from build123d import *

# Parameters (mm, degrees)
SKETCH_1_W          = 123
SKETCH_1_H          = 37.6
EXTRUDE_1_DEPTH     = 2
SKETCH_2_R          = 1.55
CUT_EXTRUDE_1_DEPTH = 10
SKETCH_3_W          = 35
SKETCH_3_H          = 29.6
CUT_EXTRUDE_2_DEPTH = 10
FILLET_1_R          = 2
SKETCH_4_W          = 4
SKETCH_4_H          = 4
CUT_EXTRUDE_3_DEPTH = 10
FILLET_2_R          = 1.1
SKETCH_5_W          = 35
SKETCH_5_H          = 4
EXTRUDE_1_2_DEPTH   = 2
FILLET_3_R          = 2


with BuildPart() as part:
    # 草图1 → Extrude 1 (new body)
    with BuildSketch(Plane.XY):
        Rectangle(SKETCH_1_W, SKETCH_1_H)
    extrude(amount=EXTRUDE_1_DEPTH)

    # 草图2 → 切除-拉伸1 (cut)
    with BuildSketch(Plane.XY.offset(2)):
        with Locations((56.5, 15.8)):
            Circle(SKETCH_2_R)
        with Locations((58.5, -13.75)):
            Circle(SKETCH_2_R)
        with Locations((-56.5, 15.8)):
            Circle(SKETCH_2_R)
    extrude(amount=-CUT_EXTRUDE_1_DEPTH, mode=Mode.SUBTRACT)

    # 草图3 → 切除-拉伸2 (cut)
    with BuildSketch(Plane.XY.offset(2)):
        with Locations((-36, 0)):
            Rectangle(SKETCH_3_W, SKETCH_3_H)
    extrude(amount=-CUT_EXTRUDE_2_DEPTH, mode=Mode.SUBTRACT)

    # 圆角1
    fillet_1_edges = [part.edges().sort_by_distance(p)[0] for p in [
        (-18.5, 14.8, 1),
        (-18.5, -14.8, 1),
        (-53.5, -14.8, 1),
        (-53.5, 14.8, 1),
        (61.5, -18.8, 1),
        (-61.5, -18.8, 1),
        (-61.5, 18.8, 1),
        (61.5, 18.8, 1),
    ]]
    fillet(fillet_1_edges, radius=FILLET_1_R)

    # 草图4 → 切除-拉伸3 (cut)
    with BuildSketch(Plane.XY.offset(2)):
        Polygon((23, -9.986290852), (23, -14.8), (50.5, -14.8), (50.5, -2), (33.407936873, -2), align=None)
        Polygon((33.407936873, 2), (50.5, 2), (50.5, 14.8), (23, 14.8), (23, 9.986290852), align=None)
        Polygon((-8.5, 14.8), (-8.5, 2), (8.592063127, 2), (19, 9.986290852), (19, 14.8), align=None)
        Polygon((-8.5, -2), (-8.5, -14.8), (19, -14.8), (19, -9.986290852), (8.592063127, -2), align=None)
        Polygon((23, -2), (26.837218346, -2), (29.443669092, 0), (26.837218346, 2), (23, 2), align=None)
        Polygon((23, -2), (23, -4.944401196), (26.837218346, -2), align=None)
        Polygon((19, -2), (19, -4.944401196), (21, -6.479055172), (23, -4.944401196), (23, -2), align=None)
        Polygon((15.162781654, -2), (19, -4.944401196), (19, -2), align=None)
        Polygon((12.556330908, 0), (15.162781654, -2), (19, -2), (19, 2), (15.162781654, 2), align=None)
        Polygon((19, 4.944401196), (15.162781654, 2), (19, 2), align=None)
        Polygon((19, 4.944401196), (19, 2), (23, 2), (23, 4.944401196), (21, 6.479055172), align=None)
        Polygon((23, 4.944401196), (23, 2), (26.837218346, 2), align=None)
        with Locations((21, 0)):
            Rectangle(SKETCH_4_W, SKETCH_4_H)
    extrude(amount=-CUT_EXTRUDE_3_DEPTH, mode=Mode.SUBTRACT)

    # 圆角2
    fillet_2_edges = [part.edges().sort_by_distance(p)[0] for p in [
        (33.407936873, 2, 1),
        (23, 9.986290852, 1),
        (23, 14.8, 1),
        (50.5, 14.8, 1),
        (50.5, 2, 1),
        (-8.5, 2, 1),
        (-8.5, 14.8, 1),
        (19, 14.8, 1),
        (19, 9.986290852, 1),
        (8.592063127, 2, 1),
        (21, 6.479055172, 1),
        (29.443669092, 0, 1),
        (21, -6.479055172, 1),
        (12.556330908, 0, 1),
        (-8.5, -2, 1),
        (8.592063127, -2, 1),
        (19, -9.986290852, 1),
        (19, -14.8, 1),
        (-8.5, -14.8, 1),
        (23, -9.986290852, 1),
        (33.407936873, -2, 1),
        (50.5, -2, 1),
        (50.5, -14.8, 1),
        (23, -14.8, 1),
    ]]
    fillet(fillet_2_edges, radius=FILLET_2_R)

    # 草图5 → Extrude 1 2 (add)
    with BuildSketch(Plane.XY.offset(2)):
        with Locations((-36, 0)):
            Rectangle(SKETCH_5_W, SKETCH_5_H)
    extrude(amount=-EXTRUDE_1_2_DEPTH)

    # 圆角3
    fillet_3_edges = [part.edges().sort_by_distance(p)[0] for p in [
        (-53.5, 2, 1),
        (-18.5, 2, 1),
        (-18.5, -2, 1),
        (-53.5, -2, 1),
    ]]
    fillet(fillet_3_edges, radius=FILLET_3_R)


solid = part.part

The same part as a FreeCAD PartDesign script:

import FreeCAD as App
import Part
import Sketcher
Q = App.Units.Quantity


def edges_at(feature, points):
    """Names of the edges that pass closest to the given points."""
    edges = feature.Shape.Edges
    near = lambda p: min(range(len(edges)), key=lambda i: edges[i].distToShape(Part.Vertex(*p))[0])
    return sorted({f"Edge{near(p) + 1}" for p in points})


def add_polygon(sketch, points):
    """Adds a closed chain of lines whose ends are joined by coincident constraints."""
    first, n = sketch.GeometryCount, len(points)
    for a, b in zip(points, points[1:] + points[:1]):
        sketch.addGeometry(Part.LineSegment(App.Vector(*a, 0), App.Vector(*b, 0)), False)
    for i in range(n):
        sketch.addConstraint(Sketcher.Constraint("Coincident", first + i, 2, first + (i + 1) % n, 1))

doc = App.newDocument("Part")
body = doc.addObject("PartDesign::Body", "Body")

# Sketch on XY plane
sketch1 = body.newObject("Sketcher::SketchObject", "Sketch")
sketch1.AttachmentSupport = (doc.getObject("XY_Plane"), [""])
sketch1.MapMode = "FlatFace"
add_polygon(sketch1, [(-62, 19), (-62, -19), (62, -19), (62, 19)])  # lines 0-3
sketch1.addConstraint([
    Sketcher.Constraint("Vertical", 0),
    Sketcher.Constraint("Horizontal", 1),
    Sketcher.Constraint("Vertical", 2),
    Sketcher.Constraint("Horizontal", 3),
    Sketcher.Constraint("Symmetric", 0, 2, 2, 2, -1, 1),
    Sketcher.Constraint("DistanceX", 1, 1, 1, 2, 123.0),
    Sketcher.Constraint("DistanceY", 0, 2, 0, 1, 37.6),
])
pad1 = body.newObject("PartDesign::Pad", "Pad")
pad1.Profile = sketch1
pad1.Length = 2

# Sketch on XY plane
sketch2 = body.newObject("Sketcher::SketchObject", "Sketch001")
sketch2.AttachmentSupport = (doc.getObject("XY_Plane"), [""])
sketch2.MapMode = "FlatFace"
sketch2.AttachmentOffset = App.Placement(App.Vector(0, 0, 2), App.Rotation())
sketch2.addGeometry([
    Part.Circle(App.Vector(56.5, 15.8, 0), App.Vector(0, 0, 1), 1.6),
    Part.Circle(App.Vector(58.5, -13.8, 0), App.Vector(0, 0, 1), 1.6),
    Part.Circle(App.Vector(-56.5, 15.8, 0), App.Vector(0, 0, 1), 1.6),
], False)
sketch2.addConstraint([
    Sketcher.Constraint("Equal", 0, 1),
    Sketcher.Constraint("Equal", 1, 2),
    Sketcher.Constraint("Symmetric", 0, 3, 2, 3, -2),
    Sketcher.Constraint("Diameter", 0, 3.1),
    Sketcher.Constraint("DistanceX", 0, 3, 1, 3, 2.0),
    Sketcher.Constraint("DistanceX", 2, 3, 0, 3, 113.0),
    Sketcher.Constraint("DistanceY", -1, 1, 0, 3, 15.8),
    Sketcher.Constraint("DistanceY", 1, 3, -1, 1, 13.75),
])
pocket1 = body.newObject("PartDesign::Pocket", "Pocket")
pocket1.Profile = sketch2
pocket1.Length = 10

# Sketch on XY plane
sketch3 = body.newObject("Sketcher::SketchObject", "Sketch002")
sketch3.AttachmentSupport = (doc.getObject("XY_Plane"), [""])
sketch3.MapMode = "FlatFace"
sketch3.AttachmentOffset = App.Placement(App.Vector(0, 0, 2), App.Rotation())
add_polygon(sketch3, [(-54, 15), (-54, -15), (-18, -15), (-18, 15)])  # lines 0-3
sketch3.addConstraint([
    Sketcher.Constraint("Vertical", 0),
    Sketcher.Constraint("Horizontal", 1),
    Sketcher.Constraint("Vertical", 2),
    Sketcher.Constraint("Horizontal", 3),
    Sketcher.Constraint("DistanceX", 1, 1, 1, 2, 35.0),
    Sketcher.Constraint("DistanceY", 0, 2, 0, 1, 29.6),
    Sketcher.Constraint("DistanceX", 0, 2, -1, 1, 53.5),
    Sketcher.Constraint("DistanceY", 0, 2, -1, 1, 14.8),
])
pocket2 = body.newObject("PartDesign::Pocket", "Pocket001")
pocket2.Profile = sketch3
pocket2.Length = 10
doc.recompute()

fillet = body.newObject("PartDesign::Fillet", "Fillet")
fillet.Base = (pocket2, edges_at(pocket2, [
    (-18.5, 14.8, 1),
    (-18.5, -14.8, 1),
    (-53.5, -14.8, 1),
    (-53.5, 14.8, 1),
    (61.5, -18.8, 1),
    (-61.5, -18.8, 1),
    (-61.5, 18.8, 1),
    (61.5, 18.8, 1),
]))
fillet.Radius = 2

# Sketch on XY plane
sketch4 = body.newObject("Sketcher::SketchObject", "Sketch003")
sketch4.AttachmentSupport = (doc.getObject("XY_Plane"), [""])
sketch4.MapMode = "FlatFace"
sketch4.AttachmentOffset = App.Placement(App.Vector(0, 0, 2), App.Rotation())
add_polygon(sketch4, [(23, -10), (23, -14.8), (50.5, -14.8), (50.5, -2), (33.4, -2)])  # lines 0-4
add_polygon(sketch4, [(33.4, 2), (50.5, 2), (50.5, 14.8), (23, 14.8), (23, 10)])  # lines 5-9
add_polygon(sketch4, [(-8.5, 14.8), (-8.5, 2), (8.6, 2), (19, 10), (19, 14.8)])  # lines 10-14
add_polygon(sketch4, [(-8.5, -2), (-8.5, -14.8), (19, -14.8), (19, -10), (8.6, -2)])  # lines 15-19
add_polygon(sketch4, [(29.4, 0), (26.8, 2), (23, 4.9), (21, 6.5), (19, 4.9), (15.2, 2), (12.6, 0), (15.2, -2), (19, -4.9), (21, -6.5), (23, -4.9), (26.8, -2)])  # lines 20-31
sketch4.addConstraint([
    Sketcher.Constraint("Vertical", 0),
    Sketcher.Constraint("Horizontal", 1),
    Sketcher.Constraint("Vertical", 2),
    Sketcher.Constraint("Horizontal", 3),
    Sketcher.Constraint("Horizontal", 5),
    Sketcher.Constraint("Vertical", 6),
    Sketcher.Constraint("Horizontal", 7),
    Sketcher.Constraint("Vertical", 8),
    Sketcher.Constraint("Vertical", 10),
    Sketcher.Constraint("Horizontal", 11),
    Sketcher.Constraint("Vertical", 13),
    Sketcher.Constraint("Horizontal", 14),
    Sketcher.Constraint("Vertical", 15),
    Sketcher.Constraint("Horizontal", 16),
    Sketcher.Constraint("Vertical", 17),
    Sketcher.Constraint("Horizontal", 19),
    Sketcher.Constraint("Symmetric", 2, 2, 5, 2, -1),
    Sketcher.Constraint("Symmetric", 0, 2, 7, 2, -1),
    Sketcher.Constraint("Symmetric", 14, 2, 15, 2, -1),
    Sketcher.Constraint("Symmetric", 12, 2, 17, 2, -1),
    Sketcher.Constraint("Symmetric", 11, 2, 18, 2, -1),
    Sketcher.Constraint("Symmetric", 24, 2, 26, 2, -1),
    Sketcher.Constraint("Symmetric", 23, 2, 27, 2, -1),
    Sketcher.Constraint("Symmetric", 22, 2, 28, 2, -1),
    Sketcher.Constraint("Symmetric", 21, 2, 29, 2, -1),
    Sketcher.Constraint("Symmetric", 20, 2, 30, 2, -1),
    Sketcher.Constraint("PointOnObject", 25, 2, -1),
    Sketcher.Constraint("PointOnObject", 31, 2, -1),
    Sketcher.Constraint("Parallel", 4, 12),
    Sketcher.Constraint("Parallel", 9, 18),
    Sketcher.Constraint("Parallel", 18, 20),
    Sketcher.Constraint("Parallel", 20, 21),
    Sketcher.Constraint("Parallel", 21, 22),
    Sketcher.Constraint("Parallel", 12, 23),
    Sketcher.Constraint("Parallel", 23, 24),
    Sketcher.Constraint("Parallel", 24, 25),
    Sketcher.Constraint("Horizontal", 9, 2, 10, 2),
    Sketcher.Constraint("Horizontal", 8, 2, 12, 2),
    Sketcher.Constraint("Horizontal", 7, 2, 13, 2),
    Sketcher.Constraint("Horizontal", 4, 2, 17, 2),
    Sketcher.Constraint("Horizontal", 11, 2, 20, 2),
    Sketcher.Constraint("Horizontal", 21, 2, 23, 2),
    Sketcher.Constraint("Horizontal", 20, 2, 24, 2),
    Sketcher.Constraint("Vertical", 8, 2, 21, 2),
    Sketcher.Constraint("Vertical", 17, 2, 23, 2),
    Sketcher.Constraint("Equal", 5, 11),
    Sketcher.Constraint("DistanceX", 1, 1, 1, 2, 27.5),
    Sketcher.Constraint("DistanceY", 2, 1, 2, 2, 12.8),
    Sketcher.Constraint("DistanceX", -1, 1, 0, 2, 23.0),
    Sketcher.Constraint("DistanceY", 2, 2, -1, 1, 2.0),
    Sketcher.Constraint("DistanceX", -1, 1, 12, 2, 19.0),
    Sketcher.Constraint("Angle", 4, Q("-142.5 deg")),
    Sketcher.Constraint("DistanceY", 0, 2, 0, 1, 4.813709),
    Sketcher.Constraint("DistanceY", -1, 1, 21, 2, 4.944401),
])
pocket3 = body.newObject("PartDesign::Pocket", "Pocket002")
pocket3.Profile = sketch4
pocket3.Length = 10
doc.recompute()

fillet2 = body.newObject("PartDesign::Fillet", "Fillet001")
fillet2.Base = (pocket3, edges_at(pocket3, [
    (33.408, 2, 1),
    (23, 9.986, 1),
    (23, 14.8, 1),
    (50.5, 14.8, 1),
    (50.5, 2, 1),
    (-8.5, 2, 1),
    (-8.5, 14.8, 1),
    (19, 14.8, 1),
    (19, 9.986, 1),
    (8.592, 2, 1),
    (21, 6.479, 1),
    (29.444, 0, 1),
    (21, -6.479, 1),
    (12.556, 0, 1),
    (-8.5, -2, 1),
    (8.592, -2, 1),
    (19, -9.986, 1),
    (19, -14.8, 1),
    (-8.5, -14.8, 1),
    (23, -9.986, 1),
    (33.408, -2, 1),
    (50.5, -2, 1),
    (50.5, -14.8, 1),
    (23, -14.8, 1),
]))
fillet2.Radius = 1.1

# Sketch on XY plane
sketch5 = body.newObject("Sketcher::SketchObject", "Sketch004")
sketch5.AttachmentSupport = (doc.getObject("XY_Plane"), [""])
sketch5.MapMode = "FlatFace"
sketch5.AttachmentOffset = App.Placement(App.Vector(0, 0, 2), App.Rotation())
add_polygon(sketch5, [(-53.5, 2), (-53.5, -2), (-18.5, -2), (-18.5, 2)])  # lines 0-3
sketch5.addConstraint([
    Sketcher.Constraint("Vertical", 0),
    Sketcher.Constraint("Horizontal", 1),
    Sketcher.Constraint("Vertical", 2),
    Sketcher.Constraint("Horizontal", 3),
    Sketcher.Constraint("DistanceX", 1, 1, 1, 2, 35.0),
    Sketcher.Constraint("DistanceY", 0, 2, 0, 1, 4.0),
    Sketcher.Constraint("DistanceY", 0, 2, -1, 1, 2.0),
    Sketcher.Constraint("DistanceX", 0, 2, -1, 1, 53.5),
])
pad2 = body.newObject("PartDesign::Pad", "Pad001")
pad2.Profile = sketch5
pad2.Length = 2
pad2.Reversed = True
doc.recompute()

fillet3 = body.newObject("PartDesign::Fillet", "Fillet002")
fillet3.Base = (pad2, edges_at(pad2, [
    (-53.5, 2, 1),
    (-18.5, 2, 1),
    (-18.5, -2, 1),
    (-53.5, -2, 1),
]))
fillet3.Radius = 2

doc.recompute()
